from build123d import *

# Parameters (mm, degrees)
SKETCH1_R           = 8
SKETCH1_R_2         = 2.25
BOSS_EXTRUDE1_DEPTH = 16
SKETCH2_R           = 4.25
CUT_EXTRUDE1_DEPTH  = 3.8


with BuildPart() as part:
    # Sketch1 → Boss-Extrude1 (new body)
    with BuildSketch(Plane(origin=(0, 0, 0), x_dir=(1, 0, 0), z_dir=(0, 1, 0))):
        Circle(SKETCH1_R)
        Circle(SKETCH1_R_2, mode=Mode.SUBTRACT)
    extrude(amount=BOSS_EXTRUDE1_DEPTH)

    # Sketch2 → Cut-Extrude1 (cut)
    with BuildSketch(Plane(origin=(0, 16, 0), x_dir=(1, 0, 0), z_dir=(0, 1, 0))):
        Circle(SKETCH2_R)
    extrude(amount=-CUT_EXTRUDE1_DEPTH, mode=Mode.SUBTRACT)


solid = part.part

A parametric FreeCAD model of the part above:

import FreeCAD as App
import Part
import Sketcher

doc = App.newDocument("Part")
body = doc.addObject("PartDesign::Body", "Body")

# Sketch on XZ plane
sketch1 = body.newObject("Sketcher::SketchObject", "Sketch")
sketch1.AttachmentSupport = (doc.getObject("XZ_Plane"), [""])
sketch1.MapMode = "FlatFace"
sketch1.addGeometry(Part.Circle(App.Vector(0, 0, 0), App.Vector(0, 0, 1), 8), False)
sketch1.addGeometry(Part.Circle(App.Vector(0, 0, 0), App.Vector(0, 0, 1), 2.2), False)
sketch1.addConstraint(Sketcher.Constraint("Coincident", 0, 3, -1, 1))
sketch1.addConstraint(Sketcher.Constraint("Coincident", 1, 3, -1, 1))
sketch1.addConstraint(Sketcher.Constraint("Diameter", 0, 16.0))
sketch1.addConstraint(Sketcher.Constraint("Diameter", 1, 4.5))
pad1 = body.newObject("PartDesign::Pad", "Pad")
pad1.Profile = sketch1
pad1.Length = 16
pad1.Reversed = True

# Sketch on XZ plane
sketch2 = body.newObject("Sketcher::SketchObject", "Sketch001")
sketch2.AttachmentSupport = (doc.getObject("XZ_Plane"), [""])
sketch2.MapMode = "FlatFace"
sketch2.AttachmentOffset = App.Placement(App.Vector(0, 0, -16), App.Rotation())
sketch2.addGeometry(Part.Circle(App.Vector(0, 0, 0), App.Vector(0, 0, 1), 4.2), False)
sketch2.addConstraint(Sketcher.Constraint("Coincident", 0, 3, -1, 1))
sketch2.addConstraint(Sketcher.Constraint("Diameter", 0, 8.5))
pocket1 = body.newObject("PartDesign::Pocket", "Pocket")
pocket1.Profile = sketch2
pocket1.Length = 3.8
pocket1.Reversed = True

doc.recompute()
